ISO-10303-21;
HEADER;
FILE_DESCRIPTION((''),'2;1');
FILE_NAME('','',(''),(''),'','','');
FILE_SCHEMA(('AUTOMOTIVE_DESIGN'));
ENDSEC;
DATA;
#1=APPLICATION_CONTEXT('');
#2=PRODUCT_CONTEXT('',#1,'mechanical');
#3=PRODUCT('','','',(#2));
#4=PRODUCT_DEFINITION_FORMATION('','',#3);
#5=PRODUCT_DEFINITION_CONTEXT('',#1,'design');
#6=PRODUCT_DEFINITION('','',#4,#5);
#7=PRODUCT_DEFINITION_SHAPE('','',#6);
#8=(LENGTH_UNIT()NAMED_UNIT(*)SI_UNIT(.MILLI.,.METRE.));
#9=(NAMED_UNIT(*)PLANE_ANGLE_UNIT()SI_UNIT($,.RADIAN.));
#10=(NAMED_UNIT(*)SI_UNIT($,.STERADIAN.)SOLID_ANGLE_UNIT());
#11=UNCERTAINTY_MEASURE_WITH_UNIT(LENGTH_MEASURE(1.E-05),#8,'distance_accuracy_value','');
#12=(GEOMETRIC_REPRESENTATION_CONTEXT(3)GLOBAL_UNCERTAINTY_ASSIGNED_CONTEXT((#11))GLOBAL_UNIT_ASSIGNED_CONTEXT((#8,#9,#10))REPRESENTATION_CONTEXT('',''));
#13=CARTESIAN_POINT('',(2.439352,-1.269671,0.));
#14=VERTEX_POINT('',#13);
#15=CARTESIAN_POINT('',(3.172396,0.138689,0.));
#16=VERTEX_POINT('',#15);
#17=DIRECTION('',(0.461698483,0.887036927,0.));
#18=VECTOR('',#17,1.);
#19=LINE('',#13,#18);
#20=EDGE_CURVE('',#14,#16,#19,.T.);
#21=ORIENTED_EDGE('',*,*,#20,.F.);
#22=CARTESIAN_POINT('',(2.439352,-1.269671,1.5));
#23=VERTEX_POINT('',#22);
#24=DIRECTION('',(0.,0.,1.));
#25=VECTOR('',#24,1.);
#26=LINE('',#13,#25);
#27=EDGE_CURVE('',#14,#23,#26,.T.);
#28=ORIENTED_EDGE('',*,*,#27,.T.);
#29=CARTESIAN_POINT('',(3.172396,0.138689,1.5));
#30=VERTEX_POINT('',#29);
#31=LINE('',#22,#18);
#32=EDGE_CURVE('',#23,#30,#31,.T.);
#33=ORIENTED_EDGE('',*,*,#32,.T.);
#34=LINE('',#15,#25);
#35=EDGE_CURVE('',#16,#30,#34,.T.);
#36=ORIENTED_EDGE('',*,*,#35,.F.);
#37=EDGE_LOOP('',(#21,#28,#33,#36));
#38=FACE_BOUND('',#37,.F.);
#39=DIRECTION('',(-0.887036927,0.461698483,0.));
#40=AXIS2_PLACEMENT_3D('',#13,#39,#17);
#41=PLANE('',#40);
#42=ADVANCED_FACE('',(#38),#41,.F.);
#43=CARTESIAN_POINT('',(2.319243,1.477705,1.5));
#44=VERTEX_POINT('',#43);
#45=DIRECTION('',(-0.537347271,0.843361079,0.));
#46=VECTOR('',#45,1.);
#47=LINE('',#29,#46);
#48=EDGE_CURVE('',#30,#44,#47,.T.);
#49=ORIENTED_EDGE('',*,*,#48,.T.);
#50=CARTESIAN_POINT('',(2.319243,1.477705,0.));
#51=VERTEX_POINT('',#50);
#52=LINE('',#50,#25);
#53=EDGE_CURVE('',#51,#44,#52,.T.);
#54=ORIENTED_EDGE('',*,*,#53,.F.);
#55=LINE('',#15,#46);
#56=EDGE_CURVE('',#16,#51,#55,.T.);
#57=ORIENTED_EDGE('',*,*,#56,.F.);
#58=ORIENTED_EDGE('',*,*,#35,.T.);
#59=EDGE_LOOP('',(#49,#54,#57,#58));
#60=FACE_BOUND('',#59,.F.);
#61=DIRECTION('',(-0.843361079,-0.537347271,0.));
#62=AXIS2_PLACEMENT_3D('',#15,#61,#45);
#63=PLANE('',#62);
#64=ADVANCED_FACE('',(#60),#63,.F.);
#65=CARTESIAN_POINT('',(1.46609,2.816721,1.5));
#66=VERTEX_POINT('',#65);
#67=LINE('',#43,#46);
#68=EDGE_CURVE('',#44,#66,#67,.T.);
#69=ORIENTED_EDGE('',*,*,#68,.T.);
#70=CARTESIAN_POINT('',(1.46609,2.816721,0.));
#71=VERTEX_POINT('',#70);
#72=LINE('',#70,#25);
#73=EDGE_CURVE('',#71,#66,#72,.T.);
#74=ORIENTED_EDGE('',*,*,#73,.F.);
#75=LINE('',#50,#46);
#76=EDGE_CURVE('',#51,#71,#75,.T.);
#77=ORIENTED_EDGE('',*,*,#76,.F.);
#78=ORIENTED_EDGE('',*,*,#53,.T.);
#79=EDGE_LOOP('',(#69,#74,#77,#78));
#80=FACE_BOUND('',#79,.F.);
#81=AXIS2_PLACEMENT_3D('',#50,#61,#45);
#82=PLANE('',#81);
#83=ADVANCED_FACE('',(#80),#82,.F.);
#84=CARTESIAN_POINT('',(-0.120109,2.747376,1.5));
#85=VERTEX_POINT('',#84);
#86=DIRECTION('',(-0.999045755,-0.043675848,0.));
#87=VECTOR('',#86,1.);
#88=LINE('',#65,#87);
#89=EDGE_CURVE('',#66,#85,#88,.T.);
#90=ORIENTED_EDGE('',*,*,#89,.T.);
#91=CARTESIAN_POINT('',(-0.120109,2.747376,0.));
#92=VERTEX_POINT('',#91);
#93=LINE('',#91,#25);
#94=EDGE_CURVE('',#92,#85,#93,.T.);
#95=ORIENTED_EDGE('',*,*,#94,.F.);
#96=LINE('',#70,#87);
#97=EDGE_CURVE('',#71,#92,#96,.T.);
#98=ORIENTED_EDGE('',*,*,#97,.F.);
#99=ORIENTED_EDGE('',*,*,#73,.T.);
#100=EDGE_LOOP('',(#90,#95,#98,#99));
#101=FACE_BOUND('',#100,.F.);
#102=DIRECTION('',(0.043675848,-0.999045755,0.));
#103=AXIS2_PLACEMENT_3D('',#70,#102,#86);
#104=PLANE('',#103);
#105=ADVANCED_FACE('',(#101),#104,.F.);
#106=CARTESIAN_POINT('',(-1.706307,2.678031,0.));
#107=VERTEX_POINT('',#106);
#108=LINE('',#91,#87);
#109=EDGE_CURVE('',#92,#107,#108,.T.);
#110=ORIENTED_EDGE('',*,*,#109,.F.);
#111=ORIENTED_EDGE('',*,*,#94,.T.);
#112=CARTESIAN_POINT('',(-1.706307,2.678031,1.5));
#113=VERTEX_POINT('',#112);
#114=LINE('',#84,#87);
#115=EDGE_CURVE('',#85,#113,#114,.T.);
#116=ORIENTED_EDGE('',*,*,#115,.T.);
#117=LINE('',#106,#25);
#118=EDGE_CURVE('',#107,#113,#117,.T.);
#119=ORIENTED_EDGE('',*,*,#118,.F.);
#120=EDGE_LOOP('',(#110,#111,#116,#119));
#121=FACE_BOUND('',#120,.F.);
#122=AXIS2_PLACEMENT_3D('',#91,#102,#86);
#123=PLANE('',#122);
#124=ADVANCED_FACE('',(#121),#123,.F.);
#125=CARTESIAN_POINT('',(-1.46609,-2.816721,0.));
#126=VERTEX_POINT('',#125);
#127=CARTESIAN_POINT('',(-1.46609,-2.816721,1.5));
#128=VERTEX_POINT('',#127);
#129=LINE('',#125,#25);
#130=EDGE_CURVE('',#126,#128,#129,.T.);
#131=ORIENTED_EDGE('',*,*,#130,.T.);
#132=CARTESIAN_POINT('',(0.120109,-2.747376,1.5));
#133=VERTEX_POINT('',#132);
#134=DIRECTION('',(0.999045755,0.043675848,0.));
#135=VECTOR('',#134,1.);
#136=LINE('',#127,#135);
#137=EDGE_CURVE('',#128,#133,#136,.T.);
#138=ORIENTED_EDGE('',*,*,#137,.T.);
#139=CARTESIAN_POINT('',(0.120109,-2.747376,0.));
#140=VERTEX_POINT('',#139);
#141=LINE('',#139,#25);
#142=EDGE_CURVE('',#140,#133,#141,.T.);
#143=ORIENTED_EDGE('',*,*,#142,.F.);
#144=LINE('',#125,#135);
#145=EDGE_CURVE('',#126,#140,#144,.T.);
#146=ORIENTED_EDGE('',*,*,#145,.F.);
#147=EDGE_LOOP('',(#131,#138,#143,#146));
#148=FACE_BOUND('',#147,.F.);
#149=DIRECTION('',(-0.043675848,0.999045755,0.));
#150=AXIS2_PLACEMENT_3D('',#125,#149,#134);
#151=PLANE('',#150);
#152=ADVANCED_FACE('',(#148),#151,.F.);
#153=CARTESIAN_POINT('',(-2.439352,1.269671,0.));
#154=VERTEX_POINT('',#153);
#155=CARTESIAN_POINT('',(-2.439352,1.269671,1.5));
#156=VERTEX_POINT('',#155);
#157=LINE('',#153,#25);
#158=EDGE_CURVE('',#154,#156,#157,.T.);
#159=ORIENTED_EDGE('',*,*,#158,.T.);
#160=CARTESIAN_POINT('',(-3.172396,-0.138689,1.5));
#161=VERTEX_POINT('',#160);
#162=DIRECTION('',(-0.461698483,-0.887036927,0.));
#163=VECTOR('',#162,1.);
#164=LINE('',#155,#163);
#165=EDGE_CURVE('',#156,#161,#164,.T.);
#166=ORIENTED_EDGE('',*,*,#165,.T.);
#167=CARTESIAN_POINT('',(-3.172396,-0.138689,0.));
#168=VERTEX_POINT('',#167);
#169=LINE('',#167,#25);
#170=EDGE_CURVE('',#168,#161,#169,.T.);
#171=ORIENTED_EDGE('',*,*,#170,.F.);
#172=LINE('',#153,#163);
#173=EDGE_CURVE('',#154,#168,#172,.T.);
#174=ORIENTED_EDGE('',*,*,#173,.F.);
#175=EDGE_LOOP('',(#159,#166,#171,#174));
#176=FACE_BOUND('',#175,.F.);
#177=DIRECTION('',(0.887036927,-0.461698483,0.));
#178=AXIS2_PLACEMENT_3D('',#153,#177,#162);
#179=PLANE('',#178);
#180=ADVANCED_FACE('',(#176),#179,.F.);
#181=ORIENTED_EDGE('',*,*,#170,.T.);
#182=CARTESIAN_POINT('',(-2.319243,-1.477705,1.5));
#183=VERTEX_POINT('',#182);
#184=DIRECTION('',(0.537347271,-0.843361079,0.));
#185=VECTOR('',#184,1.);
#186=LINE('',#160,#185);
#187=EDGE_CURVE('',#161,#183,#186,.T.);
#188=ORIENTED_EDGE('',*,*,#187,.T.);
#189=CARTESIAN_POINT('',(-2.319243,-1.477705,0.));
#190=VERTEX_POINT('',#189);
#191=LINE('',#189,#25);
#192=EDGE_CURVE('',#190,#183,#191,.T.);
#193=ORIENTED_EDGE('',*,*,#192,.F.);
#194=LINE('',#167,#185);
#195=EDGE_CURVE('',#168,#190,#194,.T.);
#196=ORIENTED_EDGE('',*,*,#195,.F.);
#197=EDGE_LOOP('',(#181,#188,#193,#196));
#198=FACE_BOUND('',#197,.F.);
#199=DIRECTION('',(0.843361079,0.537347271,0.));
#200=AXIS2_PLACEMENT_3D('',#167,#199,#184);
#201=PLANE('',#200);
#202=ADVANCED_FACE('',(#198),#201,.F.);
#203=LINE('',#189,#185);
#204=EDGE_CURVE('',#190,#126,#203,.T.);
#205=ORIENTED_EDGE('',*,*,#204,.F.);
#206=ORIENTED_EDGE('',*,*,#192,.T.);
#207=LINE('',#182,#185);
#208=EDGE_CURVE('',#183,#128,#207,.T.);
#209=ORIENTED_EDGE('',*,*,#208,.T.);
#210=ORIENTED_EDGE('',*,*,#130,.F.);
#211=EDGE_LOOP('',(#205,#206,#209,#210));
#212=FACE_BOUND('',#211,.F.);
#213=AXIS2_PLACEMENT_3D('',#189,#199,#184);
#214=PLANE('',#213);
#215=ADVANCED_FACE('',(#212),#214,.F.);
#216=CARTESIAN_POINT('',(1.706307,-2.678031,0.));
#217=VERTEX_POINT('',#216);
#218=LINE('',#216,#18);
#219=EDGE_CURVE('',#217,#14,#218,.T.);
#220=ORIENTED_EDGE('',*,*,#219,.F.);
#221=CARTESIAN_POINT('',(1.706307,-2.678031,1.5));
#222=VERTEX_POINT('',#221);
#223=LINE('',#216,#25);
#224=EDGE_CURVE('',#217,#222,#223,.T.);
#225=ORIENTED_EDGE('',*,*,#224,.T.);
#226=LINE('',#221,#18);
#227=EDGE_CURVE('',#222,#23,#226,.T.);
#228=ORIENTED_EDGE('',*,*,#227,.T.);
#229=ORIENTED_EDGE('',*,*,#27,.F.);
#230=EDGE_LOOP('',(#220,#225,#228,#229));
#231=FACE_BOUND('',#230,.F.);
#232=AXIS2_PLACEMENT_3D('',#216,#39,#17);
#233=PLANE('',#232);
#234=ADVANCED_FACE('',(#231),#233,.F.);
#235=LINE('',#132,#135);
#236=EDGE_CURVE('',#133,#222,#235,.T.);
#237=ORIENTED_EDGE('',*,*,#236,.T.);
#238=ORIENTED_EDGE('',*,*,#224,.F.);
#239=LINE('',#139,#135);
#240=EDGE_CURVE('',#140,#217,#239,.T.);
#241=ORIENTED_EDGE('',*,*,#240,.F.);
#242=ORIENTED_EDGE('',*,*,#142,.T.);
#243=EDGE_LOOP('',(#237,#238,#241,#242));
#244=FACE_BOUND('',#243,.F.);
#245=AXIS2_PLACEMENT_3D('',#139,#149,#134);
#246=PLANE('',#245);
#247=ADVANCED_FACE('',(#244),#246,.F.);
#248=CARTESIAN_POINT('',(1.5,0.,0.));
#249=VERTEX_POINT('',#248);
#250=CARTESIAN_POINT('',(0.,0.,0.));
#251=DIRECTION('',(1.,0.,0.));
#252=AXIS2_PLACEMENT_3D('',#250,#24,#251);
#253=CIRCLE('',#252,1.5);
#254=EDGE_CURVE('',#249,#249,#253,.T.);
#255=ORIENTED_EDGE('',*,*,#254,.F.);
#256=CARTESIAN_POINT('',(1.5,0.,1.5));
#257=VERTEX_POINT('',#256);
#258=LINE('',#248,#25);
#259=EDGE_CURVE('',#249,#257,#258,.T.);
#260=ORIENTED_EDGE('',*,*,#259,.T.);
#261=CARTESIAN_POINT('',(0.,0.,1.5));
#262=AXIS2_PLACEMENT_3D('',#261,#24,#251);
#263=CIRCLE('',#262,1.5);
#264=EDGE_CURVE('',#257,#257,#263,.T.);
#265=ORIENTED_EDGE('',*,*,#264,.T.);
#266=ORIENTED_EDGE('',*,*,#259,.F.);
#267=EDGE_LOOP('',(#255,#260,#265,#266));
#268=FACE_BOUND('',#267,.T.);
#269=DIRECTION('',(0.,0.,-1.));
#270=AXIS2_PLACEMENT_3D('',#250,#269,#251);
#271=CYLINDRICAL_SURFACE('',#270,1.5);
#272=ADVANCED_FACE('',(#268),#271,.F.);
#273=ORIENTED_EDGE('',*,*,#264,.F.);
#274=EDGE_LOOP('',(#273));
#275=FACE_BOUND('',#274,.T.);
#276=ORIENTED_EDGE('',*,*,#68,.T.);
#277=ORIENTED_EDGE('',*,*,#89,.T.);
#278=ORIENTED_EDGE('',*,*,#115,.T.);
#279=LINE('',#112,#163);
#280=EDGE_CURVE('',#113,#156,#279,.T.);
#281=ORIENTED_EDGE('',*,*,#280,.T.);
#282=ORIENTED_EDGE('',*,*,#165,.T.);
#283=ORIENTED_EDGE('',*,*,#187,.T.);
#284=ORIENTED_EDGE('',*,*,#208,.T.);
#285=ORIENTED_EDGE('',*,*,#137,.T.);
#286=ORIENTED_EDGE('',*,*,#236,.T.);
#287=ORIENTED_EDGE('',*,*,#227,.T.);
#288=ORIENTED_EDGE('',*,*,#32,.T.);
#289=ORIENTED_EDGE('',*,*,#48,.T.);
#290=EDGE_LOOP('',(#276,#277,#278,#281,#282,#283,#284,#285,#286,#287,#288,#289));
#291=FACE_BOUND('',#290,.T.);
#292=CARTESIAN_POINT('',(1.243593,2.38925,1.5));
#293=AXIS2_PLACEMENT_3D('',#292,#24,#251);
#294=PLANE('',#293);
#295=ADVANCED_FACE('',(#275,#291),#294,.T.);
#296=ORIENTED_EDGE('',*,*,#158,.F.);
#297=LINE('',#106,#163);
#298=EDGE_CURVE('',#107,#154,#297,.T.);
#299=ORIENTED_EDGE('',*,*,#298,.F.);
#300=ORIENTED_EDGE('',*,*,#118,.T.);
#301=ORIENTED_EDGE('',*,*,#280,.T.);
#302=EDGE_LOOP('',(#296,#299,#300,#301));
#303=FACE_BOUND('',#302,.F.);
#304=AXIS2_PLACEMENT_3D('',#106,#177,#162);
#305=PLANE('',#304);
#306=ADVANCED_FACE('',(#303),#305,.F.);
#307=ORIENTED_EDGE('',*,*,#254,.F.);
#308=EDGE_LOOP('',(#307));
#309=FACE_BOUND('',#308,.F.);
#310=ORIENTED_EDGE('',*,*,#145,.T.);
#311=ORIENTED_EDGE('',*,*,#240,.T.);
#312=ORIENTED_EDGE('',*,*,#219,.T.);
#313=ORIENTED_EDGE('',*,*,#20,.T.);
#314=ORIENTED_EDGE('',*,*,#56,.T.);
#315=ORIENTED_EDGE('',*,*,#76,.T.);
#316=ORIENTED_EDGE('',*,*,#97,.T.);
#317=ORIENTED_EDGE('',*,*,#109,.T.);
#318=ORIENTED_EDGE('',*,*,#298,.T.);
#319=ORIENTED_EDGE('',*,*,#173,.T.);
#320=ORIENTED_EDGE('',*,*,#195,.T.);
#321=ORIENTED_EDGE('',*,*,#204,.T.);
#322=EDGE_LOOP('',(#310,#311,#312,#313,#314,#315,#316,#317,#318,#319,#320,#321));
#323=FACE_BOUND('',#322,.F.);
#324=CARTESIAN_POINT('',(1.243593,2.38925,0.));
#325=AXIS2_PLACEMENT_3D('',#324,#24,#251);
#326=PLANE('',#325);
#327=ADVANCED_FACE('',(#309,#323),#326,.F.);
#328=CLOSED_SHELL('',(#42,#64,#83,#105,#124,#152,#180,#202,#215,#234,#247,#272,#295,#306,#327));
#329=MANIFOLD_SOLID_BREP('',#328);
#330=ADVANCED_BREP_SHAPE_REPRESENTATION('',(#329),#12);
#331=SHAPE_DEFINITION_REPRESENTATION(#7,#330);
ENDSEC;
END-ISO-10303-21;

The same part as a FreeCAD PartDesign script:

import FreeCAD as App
import Part
import Sketcher

V = App.Vector

doc = App.newDocument("Part")
body = doc.addObject("PartDesign::Body", "Body")

# Sketch on XY plane
sketch1 = body.newObject("Sketcher::SketchObject", "Sketch")
sketch1.AttachmentSupport = (doc.getObject("XY_Plane"), [""])
sketch1.MapMode = "FlatFace"
sketch1.addGeometry(Part.LineSegment(V(2.3, 1.5, 0), V(1.5, 2.8, 0)), False)
sketch1.addGeometry(Part.LineSegment(V(1.5, 2.8, 0), V(-0.1, 2.7, 0)), False)
sketch1.addGeometry(Part.LineSegment(V(-0.1, 2.7, 0), V(-1.7, 2.7, 0)), False)
sketch1.addGeometry(Part.LineSegment(V(-1.7, 2.7, 0), V(-2.4, 1.3, 0)), False)
sketch1.addGeometry(Part.LineSegment(V(-2.4, 1.3, 0), V(-3.2, -0.1, 0)), False)
sketch1.addGeometry(Part.LineSegment(V(-3.2, -0.1, 0), V(-2.3, -1.5, 0)), False)
sketch1.addGeometry(Part.LineSegment(V(-2.3, -1.5, 0), V(-1.5, -2.8, 0)), False)
sketch1.addGeometry(Part.LineSegment(V(-1.5, -2.8, 0), V(0.1, -2.7, 0)), False)
sketch1.addGeometry(Part.LineSegment(V(0.1, -2.7, 0), V(1.7, -2.7, 0)), False)
sketch1.addGeometry(Part.LineSegment(V(1.7, -2.7, 0), V(2.4, -1.3, 0)), False)
sketch1.addGeometry(Part.LineSegment(V(2.4, -1.3, 0), V(3.2, 0.1, 0)), False)
sketch1.addGeometry(Part.LineSegment(V(3.2, 0.1, 0), V(2.3, 1.5, 0)), False)
sketch1.addGeometry(Part.Circle(V(0, 0, 0), V(0, 0, 1), 1.5), False)
sketch1.addConstraint(Sketcher.Constraint("Coincident", 0, 2, 1, 1))
sketch1.addConstraint(Sketcher.Constraint("Coincident", 1, 2, 2, 1))
sketch1.addConstraint(Sketcher.Constraint("Coincident", 2, 2, 3, 1))
sketch1.addConstraint(Sketcher.Constraint("Coincident", 3, 2, 4, 1))
sketch1.addConstraint(Sketcher.Constraint("Coincident", 4, 2, 5, 1))
sketch1.addConstraint(Sketcher.Constraint("Coincident", 5, 2, 6, 1))
sketch1.addConstraint(Sketcher.Constraint("Coincident", 6, 2, 7, 1))
sketch1.addConstraint(Sketcher.Constraint("Coincident", 7, 2, 8, 1))
sketch1.addConstraint(Sketcher.Constraint("Coincident", 8, 2, 9, 1))
sketch1.addConstraint(Sketcher.Constraint("Coincident", 9, 2, 10, 1))
sketch1.addConstraint(Sketcher.Constraint("Coincident", 10, 2, 11, 1))
sketch1.addConstraint(Sketcher.Constraint("Coincident", 11, 2, 0, 1))
sketch1.addConstraint(Sketcher.Constraint("Coincident", 12, 3, -1, 1))
sketch1.addConstraint(Sketcher.Constraint("Symmetric", 0, 2, 6, 2, -1, 1))
sketch1.addConstraint(Sketcher.Constraint("Symmetric", 1, 2, 7, 2, -1, 1))
sketch1.addConstraint(Sketcher.Constraint("Symmetric", 2, 2, 8, 2, -1, 1))
sketch1.addConstraint(Sketcher.Constraint("Symmetric", 3, 2, 9, 2, -1, 1))
sketch1.addConstraint(Sketcher.Constraint("Symmetric", 4, 2, 10, 2, -1, 1))
sketch1.addConstraint(Sketcher.Constraint("Symmetric", 5, 2, 11, 2, -1, 1))
sketch1.addConstraint(Sketcher.Constraint("Parallel", 1, 2))
sketch1.addConstraint(Sketcher.Constraint("Parallel", 3, 4))
sketch1.addConstraint(Sketcher.Constraint("Parallel", 0, 5))
sketch1.addConstraint(Sketcher.Constraint("Equal", 0, 1))
sketch1.addConstraint(Sketcher.Constraint("Equal", 1, 2))
sketch1.addConstraint(Sketcher.Constraint("Equal", 2, 3))
sketch1.addConstraint(Sketcher.Constraint("Equal", 3, 4))
sketch1.addConstraint(Sketcher.Constraint("Equal", 4, 5))
sketch1.addConstraint(Sketcher.Constraint("Diameter", 12, 3.0))
sketch1.addConstraint(Sketcher.Constraint("DistanceX", 1, 2, 0, 2, 1.586198))
sketch1.addConstraint(Sketcher.Constraint("DistanceX", -1, 1, 0, 2, 1.46609))
sketch1.addConstraint(Sketcher.Constraint("DistanceY", -1, 1, 0, 2, 2.816721))
sketch1.addConstraint(Sketcher.Constraint("DistanceY", -1, 1, 2, 2, 2.678031))
pad1 = body.newObject("PartDesign::Pad", "Pad")
pad1.Profile = sketch1
pad1.Length = 1.5

doc.recompute()
